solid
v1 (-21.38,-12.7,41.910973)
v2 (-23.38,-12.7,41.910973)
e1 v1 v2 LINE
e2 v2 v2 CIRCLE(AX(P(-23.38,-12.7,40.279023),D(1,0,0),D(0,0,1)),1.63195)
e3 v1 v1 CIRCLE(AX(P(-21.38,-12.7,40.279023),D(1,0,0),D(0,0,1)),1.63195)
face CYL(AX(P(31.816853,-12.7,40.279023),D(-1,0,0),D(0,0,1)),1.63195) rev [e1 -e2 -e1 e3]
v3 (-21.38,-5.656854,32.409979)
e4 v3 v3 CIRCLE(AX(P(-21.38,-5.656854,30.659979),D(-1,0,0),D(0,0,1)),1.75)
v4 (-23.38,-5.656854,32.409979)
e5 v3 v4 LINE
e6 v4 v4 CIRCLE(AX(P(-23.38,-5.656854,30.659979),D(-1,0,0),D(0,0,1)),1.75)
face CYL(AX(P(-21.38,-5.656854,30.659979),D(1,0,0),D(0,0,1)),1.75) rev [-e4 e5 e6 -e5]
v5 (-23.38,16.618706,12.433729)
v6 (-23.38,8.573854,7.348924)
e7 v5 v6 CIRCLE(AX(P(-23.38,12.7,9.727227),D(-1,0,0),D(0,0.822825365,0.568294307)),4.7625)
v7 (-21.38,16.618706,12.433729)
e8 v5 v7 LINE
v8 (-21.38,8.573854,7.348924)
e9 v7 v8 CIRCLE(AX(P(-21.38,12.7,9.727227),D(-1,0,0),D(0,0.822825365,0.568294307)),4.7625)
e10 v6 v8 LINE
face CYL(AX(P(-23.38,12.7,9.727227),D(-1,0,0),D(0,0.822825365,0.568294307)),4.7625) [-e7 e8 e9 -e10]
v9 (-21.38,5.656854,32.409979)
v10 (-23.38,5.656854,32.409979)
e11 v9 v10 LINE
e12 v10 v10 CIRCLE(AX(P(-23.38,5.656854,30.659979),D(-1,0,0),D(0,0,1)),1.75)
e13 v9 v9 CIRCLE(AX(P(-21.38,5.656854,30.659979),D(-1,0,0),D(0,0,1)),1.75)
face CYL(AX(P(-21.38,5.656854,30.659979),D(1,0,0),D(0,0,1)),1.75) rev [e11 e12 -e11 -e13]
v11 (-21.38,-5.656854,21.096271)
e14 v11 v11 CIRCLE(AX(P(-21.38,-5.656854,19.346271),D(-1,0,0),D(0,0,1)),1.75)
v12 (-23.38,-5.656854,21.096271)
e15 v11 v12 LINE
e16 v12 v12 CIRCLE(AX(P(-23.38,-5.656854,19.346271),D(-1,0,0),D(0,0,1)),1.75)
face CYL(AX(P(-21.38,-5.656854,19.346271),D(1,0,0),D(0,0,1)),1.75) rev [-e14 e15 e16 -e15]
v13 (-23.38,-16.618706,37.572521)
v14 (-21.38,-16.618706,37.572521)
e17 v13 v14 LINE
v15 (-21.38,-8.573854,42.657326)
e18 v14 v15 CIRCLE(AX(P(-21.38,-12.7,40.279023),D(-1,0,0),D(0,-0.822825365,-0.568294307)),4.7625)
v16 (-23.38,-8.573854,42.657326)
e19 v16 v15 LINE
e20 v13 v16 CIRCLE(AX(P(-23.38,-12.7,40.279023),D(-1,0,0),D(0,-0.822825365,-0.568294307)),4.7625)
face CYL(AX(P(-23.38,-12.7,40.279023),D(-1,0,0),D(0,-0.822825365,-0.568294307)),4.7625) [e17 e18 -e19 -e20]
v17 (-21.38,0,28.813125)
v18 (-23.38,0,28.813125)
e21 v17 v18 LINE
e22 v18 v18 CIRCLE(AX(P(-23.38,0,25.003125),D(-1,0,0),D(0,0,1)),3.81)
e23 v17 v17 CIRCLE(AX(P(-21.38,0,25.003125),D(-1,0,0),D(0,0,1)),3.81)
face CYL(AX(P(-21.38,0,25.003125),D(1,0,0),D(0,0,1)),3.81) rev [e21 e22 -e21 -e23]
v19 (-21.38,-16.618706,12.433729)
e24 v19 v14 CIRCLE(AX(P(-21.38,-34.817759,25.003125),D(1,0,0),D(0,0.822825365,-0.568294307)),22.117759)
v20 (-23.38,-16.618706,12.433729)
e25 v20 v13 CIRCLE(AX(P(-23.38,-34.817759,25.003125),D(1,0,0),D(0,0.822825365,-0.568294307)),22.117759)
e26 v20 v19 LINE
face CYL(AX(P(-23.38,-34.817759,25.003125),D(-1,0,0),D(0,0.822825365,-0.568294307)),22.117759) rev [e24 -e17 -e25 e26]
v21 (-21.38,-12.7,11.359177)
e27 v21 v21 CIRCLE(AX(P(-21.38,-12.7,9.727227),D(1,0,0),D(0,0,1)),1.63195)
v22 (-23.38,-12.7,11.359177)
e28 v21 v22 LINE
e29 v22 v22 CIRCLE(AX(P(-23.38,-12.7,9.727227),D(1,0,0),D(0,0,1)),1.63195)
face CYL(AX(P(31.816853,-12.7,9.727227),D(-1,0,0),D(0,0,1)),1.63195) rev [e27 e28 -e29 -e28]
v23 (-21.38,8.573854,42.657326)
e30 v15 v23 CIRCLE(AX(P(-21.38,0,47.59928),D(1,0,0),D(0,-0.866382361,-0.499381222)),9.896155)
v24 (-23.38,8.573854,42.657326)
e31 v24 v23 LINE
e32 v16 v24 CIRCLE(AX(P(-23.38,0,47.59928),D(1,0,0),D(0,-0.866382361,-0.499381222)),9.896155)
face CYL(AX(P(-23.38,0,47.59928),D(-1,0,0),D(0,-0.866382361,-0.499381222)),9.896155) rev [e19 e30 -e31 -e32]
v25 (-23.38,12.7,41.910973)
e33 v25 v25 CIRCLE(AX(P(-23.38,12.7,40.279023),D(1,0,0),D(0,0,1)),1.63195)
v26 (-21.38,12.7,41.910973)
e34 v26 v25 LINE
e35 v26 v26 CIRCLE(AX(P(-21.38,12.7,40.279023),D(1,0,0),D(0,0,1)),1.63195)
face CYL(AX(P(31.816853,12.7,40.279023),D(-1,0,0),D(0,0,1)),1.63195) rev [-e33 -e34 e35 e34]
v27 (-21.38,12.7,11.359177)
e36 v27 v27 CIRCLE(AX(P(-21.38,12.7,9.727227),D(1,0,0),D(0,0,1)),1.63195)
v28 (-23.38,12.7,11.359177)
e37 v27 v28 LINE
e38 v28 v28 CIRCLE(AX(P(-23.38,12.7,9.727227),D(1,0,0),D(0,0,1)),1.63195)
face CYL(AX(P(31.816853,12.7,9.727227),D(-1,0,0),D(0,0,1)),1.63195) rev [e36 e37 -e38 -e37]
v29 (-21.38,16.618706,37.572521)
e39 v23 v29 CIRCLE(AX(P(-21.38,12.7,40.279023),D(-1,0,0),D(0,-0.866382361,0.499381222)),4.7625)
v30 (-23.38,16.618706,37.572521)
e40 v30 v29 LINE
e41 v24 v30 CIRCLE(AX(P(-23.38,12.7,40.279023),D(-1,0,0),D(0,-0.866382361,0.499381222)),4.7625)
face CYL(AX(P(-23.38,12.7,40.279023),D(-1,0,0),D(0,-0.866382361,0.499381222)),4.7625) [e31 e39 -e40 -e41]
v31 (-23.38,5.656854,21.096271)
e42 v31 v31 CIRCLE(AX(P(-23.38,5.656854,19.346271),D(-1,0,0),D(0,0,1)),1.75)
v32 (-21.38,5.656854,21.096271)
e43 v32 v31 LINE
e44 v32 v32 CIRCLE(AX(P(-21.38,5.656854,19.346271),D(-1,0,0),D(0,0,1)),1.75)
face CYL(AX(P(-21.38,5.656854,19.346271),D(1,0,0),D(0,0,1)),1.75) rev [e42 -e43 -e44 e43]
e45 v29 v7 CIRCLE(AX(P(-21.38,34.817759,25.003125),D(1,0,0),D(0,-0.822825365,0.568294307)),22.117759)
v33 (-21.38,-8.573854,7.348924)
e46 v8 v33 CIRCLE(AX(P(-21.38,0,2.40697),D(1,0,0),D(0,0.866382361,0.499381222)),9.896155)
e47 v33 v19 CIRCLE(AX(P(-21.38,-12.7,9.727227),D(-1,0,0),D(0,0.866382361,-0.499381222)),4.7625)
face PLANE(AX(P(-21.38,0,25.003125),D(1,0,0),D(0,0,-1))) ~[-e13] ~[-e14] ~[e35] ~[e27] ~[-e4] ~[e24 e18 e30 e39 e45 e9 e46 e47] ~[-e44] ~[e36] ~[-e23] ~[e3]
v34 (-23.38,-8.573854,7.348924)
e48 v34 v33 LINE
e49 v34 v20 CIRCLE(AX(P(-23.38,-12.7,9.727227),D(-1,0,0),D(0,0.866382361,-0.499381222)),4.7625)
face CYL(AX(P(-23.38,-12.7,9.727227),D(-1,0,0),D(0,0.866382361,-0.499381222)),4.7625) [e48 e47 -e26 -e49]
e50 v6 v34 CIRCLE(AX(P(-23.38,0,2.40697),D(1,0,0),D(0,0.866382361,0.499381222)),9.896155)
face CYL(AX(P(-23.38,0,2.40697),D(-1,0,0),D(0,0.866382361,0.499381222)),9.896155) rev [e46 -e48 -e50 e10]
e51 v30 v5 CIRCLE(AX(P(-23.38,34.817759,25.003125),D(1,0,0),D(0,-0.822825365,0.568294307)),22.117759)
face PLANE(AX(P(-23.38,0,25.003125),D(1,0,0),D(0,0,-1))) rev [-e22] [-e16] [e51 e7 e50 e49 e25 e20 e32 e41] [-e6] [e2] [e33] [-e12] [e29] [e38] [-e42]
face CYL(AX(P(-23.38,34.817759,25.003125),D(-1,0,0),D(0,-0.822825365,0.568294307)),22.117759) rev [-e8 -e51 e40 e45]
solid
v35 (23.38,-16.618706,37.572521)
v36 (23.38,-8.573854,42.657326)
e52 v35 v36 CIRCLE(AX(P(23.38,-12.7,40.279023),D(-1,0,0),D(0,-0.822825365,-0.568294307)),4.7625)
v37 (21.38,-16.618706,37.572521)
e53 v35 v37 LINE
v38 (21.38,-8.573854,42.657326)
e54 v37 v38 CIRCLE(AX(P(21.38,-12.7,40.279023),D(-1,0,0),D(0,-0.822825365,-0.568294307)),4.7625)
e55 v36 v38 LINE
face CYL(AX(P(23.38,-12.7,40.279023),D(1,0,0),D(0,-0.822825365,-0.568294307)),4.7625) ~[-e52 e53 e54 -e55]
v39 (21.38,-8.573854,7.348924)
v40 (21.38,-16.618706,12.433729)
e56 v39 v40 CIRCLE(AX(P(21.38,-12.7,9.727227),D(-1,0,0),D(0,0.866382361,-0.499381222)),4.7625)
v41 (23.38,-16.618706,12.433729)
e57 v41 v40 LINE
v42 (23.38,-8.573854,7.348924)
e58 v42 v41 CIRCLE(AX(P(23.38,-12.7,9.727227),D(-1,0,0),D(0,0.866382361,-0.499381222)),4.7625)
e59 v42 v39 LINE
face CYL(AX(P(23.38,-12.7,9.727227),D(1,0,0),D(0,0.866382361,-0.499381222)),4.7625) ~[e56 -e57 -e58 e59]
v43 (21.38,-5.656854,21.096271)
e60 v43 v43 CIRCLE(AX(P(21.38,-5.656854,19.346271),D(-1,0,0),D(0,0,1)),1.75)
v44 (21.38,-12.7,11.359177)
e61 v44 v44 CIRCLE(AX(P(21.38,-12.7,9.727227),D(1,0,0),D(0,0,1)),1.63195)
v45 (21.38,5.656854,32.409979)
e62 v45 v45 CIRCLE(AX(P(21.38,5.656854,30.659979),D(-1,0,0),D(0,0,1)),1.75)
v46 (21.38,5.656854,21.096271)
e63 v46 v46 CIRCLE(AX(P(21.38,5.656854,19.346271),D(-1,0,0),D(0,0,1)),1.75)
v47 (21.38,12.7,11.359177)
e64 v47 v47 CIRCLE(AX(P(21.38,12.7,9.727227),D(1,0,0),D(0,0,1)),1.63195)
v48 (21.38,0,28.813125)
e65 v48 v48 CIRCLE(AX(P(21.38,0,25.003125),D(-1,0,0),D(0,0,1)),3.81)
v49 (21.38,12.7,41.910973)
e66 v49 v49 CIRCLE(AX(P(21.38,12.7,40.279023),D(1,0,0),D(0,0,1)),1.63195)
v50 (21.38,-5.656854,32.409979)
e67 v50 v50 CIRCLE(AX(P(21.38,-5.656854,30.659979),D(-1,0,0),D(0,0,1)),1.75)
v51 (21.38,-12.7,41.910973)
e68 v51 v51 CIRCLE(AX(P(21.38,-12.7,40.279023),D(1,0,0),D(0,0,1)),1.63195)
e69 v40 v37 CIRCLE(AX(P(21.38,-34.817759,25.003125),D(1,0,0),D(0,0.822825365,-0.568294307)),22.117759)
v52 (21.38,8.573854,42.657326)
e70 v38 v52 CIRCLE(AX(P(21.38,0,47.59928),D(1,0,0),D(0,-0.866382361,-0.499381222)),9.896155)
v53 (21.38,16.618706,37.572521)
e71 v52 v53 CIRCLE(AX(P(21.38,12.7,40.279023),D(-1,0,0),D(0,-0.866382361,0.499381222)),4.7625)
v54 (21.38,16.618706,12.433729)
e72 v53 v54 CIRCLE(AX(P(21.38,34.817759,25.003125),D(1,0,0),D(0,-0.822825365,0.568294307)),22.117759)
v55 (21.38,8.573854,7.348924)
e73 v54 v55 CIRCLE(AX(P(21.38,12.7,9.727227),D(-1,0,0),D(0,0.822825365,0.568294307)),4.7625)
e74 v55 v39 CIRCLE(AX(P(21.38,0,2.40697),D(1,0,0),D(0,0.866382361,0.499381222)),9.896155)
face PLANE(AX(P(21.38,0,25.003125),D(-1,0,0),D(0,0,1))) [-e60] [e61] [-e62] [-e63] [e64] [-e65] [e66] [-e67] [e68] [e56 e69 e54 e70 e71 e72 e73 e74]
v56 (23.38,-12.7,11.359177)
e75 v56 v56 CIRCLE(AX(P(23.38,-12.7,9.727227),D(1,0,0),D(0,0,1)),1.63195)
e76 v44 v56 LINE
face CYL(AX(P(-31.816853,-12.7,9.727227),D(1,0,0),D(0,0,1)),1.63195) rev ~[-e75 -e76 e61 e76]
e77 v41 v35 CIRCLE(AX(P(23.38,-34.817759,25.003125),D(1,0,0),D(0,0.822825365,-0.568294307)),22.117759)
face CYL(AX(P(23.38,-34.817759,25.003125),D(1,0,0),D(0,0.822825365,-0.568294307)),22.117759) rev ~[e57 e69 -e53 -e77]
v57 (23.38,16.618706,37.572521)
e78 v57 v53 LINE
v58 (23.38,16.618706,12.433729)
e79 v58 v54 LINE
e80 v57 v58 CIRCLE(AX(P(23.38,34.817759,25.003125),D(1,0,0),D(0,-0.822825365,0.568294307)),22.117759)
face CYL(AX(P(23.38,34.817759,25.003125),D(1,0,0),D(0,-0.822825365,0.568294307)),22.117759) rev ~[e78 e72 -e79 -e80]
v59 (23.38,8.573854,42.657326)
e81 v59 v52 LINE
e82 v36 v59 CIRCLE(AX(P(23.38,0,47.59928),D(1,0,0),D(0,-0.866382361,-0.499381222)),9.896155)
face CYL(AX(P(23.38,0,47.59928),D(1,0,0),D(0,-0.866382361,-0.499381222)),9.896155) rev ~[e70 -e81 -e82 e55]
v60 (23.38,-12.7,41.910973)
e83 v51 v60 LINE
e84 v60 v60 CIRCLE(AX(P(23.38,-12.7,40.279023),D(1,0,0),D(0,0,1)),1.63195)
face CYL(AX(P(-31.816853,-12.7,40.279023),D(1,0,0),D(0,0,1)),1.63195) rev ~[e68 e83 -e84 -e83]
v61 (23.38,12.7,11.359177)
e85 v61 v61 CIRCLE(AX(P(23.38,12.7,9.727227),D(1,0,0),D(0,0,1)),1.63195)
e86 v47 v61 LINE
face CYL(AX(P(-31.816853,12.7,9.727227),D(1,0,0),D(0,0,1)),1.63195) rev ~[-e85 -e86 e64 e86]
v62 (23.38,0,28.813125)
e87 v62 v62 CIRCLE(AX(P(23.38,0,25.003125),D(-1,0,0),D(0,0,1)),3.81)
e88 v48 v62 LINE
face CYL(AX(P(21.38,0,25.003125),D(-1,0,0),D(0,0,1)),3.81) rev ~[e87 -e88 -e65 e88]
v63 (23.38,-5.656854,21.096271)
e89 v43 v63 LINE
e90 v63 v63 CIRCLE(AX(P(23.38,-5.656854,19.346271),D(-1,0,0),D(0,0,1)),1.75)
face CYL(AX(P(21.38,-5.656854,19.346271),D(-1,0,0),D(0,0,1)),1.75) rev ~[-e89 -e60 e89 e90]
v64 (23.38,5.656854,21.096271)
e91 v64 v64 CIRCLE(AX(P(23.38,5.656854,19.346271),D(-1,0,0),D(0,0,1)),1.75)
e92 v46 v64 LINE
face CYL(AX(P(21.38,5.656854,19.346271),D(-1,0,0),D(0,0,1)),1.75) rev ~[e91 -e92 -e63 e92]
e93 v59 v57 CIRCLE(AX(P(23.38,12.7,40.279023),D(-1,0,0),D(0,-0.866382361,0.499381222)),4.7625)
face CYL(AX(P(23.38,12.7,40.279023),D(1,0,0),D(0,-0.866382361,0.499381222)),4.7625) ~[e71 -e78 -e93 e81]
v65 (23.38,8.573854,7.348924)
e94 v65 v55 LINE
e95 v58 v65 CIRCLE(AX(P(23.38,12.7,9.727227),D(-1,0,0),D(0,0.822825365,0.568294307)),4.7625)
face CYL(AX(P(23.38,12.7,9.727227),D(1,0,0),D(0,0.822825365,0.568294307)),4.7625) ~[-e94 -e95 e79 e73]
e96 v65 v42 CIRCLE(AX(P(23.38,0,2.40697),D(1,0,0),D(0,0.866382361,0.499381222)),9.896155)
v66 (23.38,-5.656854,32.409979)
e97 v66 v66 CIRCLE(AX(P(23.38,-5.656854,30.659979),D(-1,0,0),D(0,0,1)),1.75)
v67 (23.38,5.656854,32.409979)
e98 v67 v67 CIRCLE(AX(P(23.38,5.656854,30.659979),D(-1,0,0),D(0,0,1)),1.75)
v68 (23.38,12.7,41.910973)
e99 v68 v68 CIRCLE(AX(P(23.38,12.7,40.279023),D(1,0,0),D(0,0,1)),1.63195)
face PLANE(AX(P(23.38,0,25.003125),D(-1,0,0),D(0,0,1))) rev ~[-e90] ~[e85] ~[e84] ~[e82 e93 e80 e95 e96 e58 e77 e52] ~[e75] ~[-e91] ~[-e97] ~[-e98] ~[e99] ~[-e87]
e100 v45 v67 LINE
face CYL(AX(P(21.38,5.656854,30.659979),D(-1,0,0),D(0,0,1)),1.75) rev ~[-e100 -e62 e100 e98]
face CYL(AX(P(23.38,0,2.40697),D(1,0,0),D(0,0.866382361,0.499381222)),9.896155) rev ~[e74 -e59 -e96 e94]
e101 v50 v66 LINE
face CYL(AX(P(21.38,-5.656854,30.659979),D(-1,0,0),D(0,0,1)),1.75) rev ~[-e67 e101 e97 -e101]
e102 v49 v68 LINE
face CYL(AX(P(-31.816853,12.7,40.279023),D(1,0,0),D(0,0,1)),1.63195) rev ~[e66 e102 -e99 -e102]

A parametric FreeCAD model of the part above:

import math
import FreeCAD as App
import Part
import Sketcher

V = App.Vector

doc = App.newDocument("Part")
body = doc.addObject("PartDesign::Body", "Body")

# Sketch on YZ plane
sketch1 = body.newObject("Sketcher::SketchObject", "Sketch")
sketch1.AttachmentSupport = (doc.getObject("YZ_Plane"), [""])
sketch1.MapMode = "FlatFace"
sketch1.AttachmentOffset = App.Placement(V(0, 0, 23.38), App.Rotation())
sketch1.addGeometry([
    Part.ArcOfCircle(Part.Circle(V(12.7, 9.7, 0), V(0, 0, 1), 4.8), math.radians(-150), math.radians(35)),  # 0
    Part.ArcOfCircle(Part.Circle(V(34.8, 25, 0), V(0, 0, 1), 22.1), math.radians(145), math.radians(215)),  # 1
    Part.ArcOfCircle(Part.Circle(V(12.7, 40.3, 0), V(0, 0, 1), 4.8), math.radians(-35), math.radians(150)),  # 2
    Part.ArcOfCircle(Part.Circle(V(0, 47.6, 0), V(0, 0, 1), 9.9), math.radians(-150), math.radians(-30)),  # 3
    Part.ArcOfCircle(Part.Circle(V(-12.7, 40.3, 0), V(0, 0, 1), 4.8), math.radians(30), math.radians(215)),  # 4
    Part.ArcOfCircle(Part.Circle(V(-34.8, 25, 0), V(0, 0, 1), 22.1), math.radians(-35), math.radians(35)),  # 5
    Part.ArcOfCircle(Part.Circle(V(-12.7, 9.7, 0), V(0, 0, 1), 4.8), math.radians(145), math.radians(330)),  # 6
    Part.ArcOfCircle(Part.Circle(V(0, 2.4, 0), V(0, 0, 1), 9.9), math.radians(30), math.radians(150)),  # 7
], False)
sketch1.addConstraint([
    Sketcher.Constraint("Tangent", 0, 2, 1, 2),
    Sketcher.Constraint("Tangent", 1, 1, 2, 1),
    Sketcher.Constraint("Tangent", 2, 2, 3, 2),
    Sketcher.Constraint("Tangent", 3, 1, 4, 1),
    Sketcher.Constraint("Tangent", 4, 2, 5, 2),
    Sketcher.Constraint("Tangent", 5, 1, 6, 1),
    Sketcher.Constraint("Tangent", 6, 2, 7, 2),
    Sketcher.Constraint("Tangent", 7, 1, 0, 1),
    Sketcher.Constraint("Equal", 0, 2),
    Sketcher.Constraint("Equal", 2, 4),
    Sketcher.Constraint("Equal", 1, 5),
    Sketcher.Constraint("Equal", 4, 6),
    Sketcher.Constraint("Equal", 3, 7),
    Sketcher.Constraint("Symmetric", 2, 3, 4, 3, -2),
    Sketcher.Constraint("Symmetric", 0, 3, 6, 3, -2),
    Sketcher.Constraint("Vertical", 0, 3, 2, 3),
    Sketcher.Constraint("DistanceX", -1, 1, 0, 3, 12.7),
    Sketcher.Constraint("Radius", 0, 4.7625),
    Sketcher.Constraint("Radius", 1, 22.117759),
    Sketcher.Constraint("Radius", 3, 9.896155),
    Sketcher.Constraint("DistanceY", 0, 3, 0, 2, 2.706502),
    Sketcher.Constraint("DistanceY", -1, 1, 3, 3, 47.59928),
])
pad1 = body.newObject("PartDesign::Pad", "Pad")
pad1.Profile = sketch1
pad1.Length = 2
pad1.Reversed = True

# Sketch on YZ plane
sketch2 = body.newObject("Sketcher::SketchObject", "Sketch001")
sketch2.AttachmentSupport = (doc.getObject("YZ_Plane"), [""])
sketch2.MapMode = "FlatFace"
sketch2.AttachmentOffset = App.Placement(V(0, 0, 21.38), App.Rotation())
sketch2.addGeometry([
    Part.Circle(V(5.7, 19.3, 0), V(0, 0, 1), 1.8),  # 0
    Part.Circle(V(-5.7, 19.3, 0), V(0, 0, 1), 1.8),  # 1
    Part.Circle(V(-5.7, 30.7, 0), V(0, 0, 1), 1.8),  # 2
    Part.Circle(V(5.7, 30.7, 0), V(0, 0, 1), 1.8),  # 3
    Part.Circle(V(0, 25, 0), V(0, 0, 1), 3.8),  # 4
], False)
sketch2.addConstraint([
    Sketcher.Constraint("Equal", 0, 1),
    Sketcher.Constraint("Equal", 1, 2),
    Sketcher.Constraint("Equal", 2, 3),
    Sketcher.Constraint("Symmetric", 0, 3, 1, 3, -2),
    Sketcher.Constraint("Symmetric", 2, 3, 3, 3, -2),
    Sketcher.Constraint("PointOnObject", 4, 3, -2),
    Sketcher.Constraint("Vertical", 1, 3, 2, 3),
    Sketcher.Constraint("Diameter", 0, 3.5),
    Sketcher.Constraint("Diameter", 4, 7.62),
    Sketcher.Constraint("DistanceY", -1, 1, 0, 3, 19.346271),
    Sketcher.Constraint("DistanceY", -1, 1, 2, 3, 30.659979),
    Sketcher.Constraint("DistanceX", 1, 3, 0, 3, 11.313709),
    Sketcher.Constraint("DistanceY", -1, 1, 4, 3, 25.003125),
])
pocket1 = body.newObject("PartDesign::Pocket", "Pocket")
pocket1.Profile = sketch2
pocket1.Length = 2
pocket1.Reversed = True

# Sketch on YZ plane
sketch3 = body.newObject("Sketcher::SketchObject", "Sketch002")
sketch3.AttachmentSupport = (doc.getObject("YZ_Plane"), [""])
sketch3.MapMode = "FlatFace"
sketch3.AttachmentOffset = App.Placement(V(0, 0, 21.38), App.Rotation())
sketch3.addGeometry([
    Part.Circle(V(12.7, 40.3, 0), V(0, 0, 1), 1.6),
    Part.Circle(V(12.7, 9.7, 0), V(0, 0, 1), 1.6),
    Part.Circle(V(-12.7, 9.7, 0), V(0, 0, 1), 1.6),
    Part.Circle(V(-12.7, 40.3, 0), V(0, 0, 1), 1.6),
], False)
sketch3.addConstraint([
    Sketcher.Constraint("Equal", 0, 1),
    Sketcher.Constraint("Equal", 1, 2),
    Sketcher.Constraint("Equal", 2, 3),
    Sketcher.Constraint("Symmetric", 1, 3, 2, 3, -2),
    Sketcher.Constraint("Symmetric", 0, 3, 3, 3, -2),
    Sketcher.Constraint("Vertical", 0, 3, 1, 3),
    Sketcher.Constraint("Diameter", 0, 3.2639),
    Sketcher.Constraint("DistanceX", -1, 1, 0, 3, 12.7),
    Sketcher.Constraint("DistanceY", -1, 1, 0, 3, 40.279023),
    Sketcher.Constraint("DistanceY", -1, 1, 1, 3, 9.727227),
])
doc.recompute()
hole = body.newObject("PartDesign::Hole", "Hole")
hole.Profile = sketch3
hole.ThreadType = "None"
hole.Diameter = 3.2639
hole.DepthType = "ThroughAll"
hole.Reversed = True
body2 = doc.addObject("PartDesign::Body", "Body001")
doc.recompute()

mirroring = doc.addObject("Part::Mirroring", "Mirroring")
mirroring.Source = body
mirroring.Base = V(0, 0, 0)
mirroring.Normal = V(1, 0, 0)
body2.BaseFeature = mirroring
doc.recompute()
mirroring.Visibility = False

doc.recompute()
